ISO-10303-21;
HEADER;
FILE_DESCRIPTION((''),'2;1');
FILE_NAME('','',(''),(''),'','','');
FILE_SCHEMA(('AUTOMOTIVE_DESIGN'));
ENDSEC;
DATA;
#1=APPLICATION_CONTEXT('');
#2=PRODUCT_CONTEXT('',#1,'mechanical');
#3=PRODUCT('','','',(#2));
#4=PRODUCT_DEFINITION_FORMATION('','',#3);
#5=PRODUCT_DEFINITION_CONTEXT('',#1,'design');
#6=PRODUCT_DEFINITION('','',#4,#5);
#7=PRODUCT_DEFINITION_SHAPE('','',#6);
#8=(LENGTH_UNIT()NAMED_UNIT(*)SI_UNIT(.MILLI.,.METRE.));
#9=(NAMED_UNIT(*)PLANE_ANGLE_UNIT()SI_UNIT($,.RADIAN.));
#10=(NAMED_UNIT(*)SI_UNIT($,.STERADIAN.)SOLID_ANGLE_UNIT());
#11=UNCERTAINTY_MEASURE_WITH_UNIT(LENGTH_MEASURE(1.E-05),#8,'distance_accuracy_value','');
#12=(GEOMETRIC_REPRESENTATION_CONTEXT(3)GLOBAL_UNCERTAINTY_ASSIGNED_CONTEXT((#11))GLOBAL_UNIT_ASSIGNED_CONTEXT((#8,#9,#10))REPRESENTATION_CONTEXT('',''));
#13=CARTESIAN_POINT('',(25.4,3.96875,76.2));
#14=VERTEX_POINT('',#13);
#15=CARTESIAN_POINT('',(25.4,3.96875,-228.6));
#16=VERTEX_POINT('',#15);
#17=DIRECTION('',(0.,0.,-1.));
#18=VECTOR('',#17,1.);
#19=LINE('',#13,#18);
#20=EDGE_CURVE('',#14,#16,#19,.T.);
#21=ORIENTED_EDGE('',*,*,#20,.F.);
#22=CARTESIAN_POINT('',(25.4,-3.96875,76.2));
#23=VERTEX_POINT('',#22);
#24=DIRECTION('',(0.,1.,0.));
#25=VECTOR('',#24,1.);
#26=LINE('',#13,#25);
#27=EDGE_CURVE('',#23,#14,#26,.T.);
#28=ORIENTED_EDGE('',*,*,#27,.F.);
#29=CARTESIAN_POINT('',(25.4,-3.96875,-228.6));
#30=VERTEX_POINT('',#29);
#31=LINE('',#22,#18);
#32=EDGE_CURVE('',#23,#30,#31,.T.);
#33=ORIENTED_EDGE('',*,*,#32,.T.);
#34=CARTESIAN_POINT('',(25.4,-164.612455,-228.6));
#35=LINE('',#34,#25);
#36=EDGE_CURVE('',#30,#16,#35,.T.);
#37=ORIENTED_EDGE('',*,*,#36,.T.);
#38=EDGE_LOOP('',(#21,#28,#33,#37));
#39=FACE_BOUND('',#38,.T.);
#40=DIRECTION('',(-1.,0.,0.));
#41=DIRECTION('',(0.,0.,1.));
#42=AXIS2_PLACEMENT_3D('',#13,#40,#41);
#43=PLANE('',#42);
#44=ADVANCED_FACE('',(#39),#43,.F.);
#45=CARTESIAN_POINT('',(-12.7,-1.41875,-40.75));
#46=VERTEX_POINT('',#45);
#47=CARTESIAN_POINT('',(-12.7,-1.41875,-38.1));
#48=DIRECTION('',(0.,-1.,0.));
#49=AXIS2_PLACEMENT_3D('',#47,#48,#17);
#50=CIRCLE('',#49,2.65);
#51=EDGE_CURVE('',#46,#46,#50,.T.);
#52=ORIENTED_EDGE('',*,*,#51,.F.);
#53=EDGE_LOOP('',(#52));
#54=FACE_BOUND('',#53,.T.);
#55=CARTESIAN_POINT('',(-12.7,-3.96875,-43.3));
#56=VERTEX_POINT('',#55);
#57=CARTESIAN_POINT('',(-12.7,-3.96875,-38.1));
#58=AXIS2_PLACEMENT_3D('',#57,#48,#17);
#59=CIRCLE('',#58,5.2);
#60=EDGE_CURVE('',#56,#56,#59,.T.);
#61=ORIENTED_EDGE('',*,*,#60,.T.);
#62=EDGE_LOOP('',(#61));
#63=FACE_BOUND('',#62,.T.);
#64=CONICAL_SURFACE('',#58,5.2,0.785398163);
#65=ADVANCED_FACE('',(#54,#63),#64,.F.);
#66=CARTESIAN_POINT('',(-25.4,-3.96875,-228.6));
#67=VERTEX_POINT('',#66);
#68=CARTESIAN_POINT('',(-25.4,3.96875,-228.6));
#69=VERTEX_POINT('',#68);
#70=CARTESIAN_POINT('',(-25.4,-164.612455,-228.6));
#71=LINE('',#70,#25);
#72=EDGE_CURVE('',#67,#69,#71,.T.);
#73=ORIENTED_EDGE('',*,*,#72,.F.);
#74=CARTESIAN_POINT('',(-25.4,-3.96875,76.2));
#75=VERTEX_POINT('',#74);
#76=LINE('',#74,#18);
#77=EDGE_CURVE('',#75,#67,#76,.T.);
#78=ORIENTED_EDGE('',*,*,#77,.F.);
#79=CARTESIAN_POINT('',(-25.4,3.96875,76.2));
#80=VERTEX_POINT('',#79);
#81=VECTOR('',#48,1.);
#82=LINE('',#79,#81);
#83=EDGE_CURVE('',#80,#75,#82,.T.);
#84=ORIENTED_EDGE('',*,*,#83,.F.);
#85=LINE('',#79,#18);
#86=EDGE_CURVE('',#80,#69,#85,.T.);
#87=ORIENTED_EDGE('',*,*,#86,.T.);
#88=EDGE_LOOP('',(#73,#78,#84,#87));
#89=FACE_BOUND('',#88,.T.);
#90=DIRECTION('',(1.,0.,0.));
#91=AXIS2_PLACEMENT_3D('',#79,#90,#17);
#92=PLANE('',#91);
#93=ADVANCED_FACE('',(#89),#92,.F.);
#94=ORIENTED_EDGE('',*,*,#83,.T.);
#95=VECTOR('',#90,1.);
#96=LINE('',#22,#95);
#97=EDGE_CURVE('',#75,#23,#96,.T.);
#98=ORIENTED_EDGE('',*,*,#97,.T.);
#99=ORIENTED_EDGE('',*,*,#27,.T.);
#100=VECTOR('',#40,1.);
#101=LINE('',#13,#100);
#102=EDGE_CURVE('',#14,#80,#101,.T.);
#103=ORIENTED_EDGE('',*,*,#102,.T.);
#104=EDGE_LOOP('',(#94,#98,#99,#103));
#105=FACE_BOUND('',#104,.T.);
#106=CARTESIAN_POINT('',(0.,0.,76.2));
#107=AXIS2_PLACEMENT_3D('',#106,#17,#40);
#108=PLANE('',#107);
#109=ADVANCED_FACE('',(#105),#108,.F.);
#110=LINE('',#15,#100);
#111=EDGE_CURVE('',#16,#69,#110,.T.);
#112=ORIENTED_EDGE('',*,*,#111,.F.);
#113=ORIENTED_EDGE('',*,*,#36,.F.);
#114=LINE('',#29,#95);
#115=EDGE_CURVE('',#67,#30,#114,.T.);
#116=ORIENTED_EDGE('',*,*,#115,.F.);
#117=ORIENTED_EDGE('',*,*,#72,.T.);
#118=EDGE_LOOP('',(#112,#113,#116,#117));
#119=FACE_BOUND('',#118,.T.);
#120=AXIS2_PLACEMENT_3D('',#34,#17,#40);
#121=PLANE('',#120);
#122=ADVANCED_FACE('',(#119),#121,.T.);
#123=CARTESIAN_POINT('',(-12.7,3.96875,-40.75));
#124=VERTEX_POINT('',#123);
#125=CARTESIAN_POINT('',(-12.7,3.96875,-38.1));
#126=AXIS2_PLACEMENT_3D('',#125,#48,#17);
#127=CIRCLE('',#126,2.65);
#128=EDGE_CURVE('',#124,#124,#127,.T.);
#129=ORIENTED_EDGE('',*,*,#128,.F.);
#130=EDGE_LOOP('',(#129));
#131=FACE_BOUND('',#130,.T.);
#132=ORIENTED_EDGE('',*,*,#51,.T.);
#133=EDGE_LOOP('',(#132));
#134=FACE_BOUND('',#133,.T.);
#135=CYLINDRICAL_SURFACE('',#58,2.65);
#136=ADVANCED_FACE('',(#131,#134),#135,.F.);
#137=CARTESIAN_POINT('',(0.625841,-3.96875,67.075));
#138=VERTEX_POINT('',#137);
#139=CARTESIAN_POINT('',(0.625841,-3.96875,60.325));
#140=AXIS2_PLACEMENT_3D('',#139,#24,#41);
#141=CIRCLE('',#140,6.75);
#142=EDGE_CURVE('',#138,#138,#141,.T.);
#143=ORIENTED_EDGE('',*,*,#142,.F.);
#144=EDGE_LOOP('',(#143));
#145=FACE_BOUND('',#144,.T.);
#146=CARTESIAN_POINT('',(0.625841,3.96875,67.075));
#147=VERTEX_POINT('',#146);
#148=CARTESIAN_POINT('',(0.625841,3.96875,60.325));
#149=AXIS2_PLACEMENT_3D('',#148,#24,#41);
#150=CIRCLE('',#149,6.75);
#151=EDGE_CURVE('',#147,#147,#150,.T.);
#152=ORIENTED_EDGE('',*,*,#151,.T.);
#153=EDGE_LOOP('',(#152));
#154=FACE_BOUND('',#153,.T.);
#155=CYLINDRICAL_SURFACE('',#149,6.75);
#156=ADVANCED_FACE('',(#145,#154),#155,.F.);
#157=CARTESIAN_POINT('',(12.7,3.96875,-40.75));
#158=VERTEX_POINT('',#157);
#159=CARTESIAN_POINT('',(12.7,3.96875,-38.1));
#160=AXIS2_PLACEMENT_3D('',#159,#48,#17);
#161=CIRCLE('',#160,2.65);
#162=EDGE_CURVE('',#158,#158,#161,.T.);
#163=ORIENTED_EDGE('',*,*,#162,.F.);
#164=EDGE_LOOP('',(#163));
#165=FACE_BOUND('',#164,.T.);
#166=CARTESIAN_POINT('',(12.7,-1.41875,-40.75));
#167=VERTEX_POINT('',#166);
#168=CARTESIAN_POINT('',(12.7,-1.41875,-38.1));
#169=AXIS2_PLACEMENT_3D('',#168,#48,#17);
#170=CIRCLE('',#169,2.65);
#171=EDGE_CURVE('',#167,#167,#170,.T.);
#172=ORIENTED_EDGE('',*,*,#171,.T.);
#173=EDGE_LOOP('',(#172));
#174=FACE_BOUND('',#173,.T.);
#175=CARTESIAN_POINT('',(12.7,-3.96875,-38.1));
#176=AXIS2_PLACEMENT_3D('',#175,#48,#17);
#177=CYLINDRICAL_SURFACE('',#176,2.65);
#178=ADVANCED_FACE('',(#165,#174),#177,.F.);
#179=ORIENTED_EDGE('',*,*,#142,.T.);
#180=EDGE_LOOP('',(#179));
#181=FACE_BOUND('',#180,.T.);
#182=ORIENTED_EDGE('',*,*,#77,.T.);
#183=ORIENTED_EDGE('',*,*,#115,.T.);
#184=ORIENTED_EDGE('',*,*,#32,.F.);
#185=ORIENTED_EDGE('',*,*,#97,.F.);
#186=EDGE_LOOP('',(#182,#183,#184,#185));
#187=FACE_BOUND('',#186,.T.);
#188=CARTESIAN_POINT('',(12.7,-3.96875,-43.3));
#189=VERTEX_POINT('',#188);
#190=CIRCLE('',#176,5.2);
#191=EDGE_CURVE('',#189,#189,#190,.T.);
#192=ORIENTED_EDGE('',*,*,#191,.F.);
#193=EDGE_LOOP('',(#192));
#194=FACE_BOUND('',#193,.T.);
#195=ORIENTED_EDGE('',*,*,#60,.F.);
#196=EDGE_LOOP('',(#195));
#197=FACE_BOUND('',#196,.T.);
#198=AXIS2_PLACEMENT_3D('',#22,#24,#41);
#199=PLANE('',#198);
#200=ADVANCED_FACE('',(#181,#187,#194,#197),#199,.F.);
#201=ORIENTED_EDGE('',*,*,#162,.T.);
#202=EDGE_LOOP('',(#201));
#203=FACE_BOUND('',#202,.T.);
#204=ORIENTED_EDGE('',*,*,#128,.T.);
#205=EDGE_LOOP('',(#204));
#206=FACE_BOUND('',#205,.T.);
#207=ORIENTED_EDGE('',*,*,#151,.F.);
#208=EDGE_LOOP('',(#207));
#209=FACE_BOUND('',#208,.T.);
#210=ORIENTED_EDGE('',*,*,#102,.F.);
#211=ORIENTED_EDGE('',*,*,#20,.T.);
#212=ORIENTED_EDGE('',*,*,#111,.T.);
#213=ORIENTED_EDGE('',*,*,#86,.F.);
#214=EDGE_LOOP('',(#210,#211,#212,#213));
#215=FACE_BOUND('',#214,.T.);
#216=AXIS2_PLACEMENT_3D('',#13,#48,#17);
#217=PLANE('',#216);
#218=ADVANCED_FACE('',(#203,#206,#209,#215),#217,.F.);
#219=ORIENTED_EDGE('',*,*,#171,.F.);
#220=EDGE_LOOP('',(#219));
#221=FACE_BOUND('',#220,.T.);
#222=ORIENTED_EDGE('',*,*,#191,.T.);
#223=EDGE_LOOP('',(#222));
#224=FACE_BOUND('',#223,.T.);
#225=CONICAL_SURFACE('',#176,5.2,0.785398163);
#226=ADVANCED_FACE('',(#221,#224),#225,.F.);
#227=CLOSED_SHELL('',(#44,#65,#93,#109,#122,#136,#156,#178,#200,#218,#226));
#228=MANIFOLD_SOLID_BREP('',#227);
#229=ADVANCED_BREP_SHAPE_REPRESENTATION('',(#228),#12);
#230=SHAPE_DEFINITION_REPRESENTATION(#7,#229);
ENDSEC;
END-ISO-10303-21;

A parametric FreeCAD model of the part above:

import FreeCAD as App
import Part
import Sketcher

V = App.Vector
Q = App.Units.Quantity


def add_polygon(sketch, points):
    """Adds a closed chain of lines whose ends are joined by coincident constraints."""
    first, n = sketch.GeometryCount, len(points)
    for a, b in zip(points, points[1:] + points[:1]):
        sketch.addGeometry(Part.LineSegment(App.Vector(*a, 0), App.Vector(*b, 0)), False)
    for i in range(n):
        sketch.addConstraint(Sketcher.Constraint("Coincident", first + i, 2, first + (i + 1) % n, 1))

doc = App.newDocument("Part")
params = doc.addObject("Spreadsheet::Sheet", "Params")
for row, (alias, value) in enumerate([
    ("sketch1_width", "2 in"),
    ("sketch1_height", "0.3125 in"),
    ("pad1_length", "3 in"),
    ("pad1_length2", "3 in"),
    ("hole_diameter", "13.5 mm"),
    ("hole2_diameter", "5.3 mm"),
    ("hole2_csink_diameter", "10.4 mm"),
    ("sketch4_width", "2 in"),
    ("sketch4_height", "6 in"),
    ("pad2_length", "0.3125 in"),
], start=1):
    params.set(f"A{row}", alias)
    params.set(f"B{row}", "=" + value)
    params.setAlias(f"B{row}", alias)

body = doc.addObject("PartDesign::Body", "Body")

# Sketch on XY plane
sketch1 = body.newObject("Sketcher::SketchObject", "Sketch")
sketch1.AttachmentSupport = (doc.getObject("XY_Plane"), [""])
sketch1.MapMode = "FlatFace"
add_polygon(sketch1, [(-25, 4), (-25, -4), (25, -4), (25, 4)])  # lines 0-3
sketch1.addConstraint([
    Sketcher.Constraint("Vertical", 0),
    Sketcher.Constraint("Horizontal", 1),
    Sketcher.Constraint("Vertical", 2),
    Sketcher.Constraint("Horizontal", 3),
    Sketcher.Constraint("Symmetric", 0, 2, 2, 2, -1, 1),
    Sketcher.Constraint("DistanceX", 1, 1, 1, 2, Q("2 in")),
    Sketcher.Constraint("DistanceY", 0, 2, 0, 1, Q("0.3125 in")),
])
sketch1.setExpression("Constraints[9]", "Params.sketch1_width")
sketch1.setExpression("Constraints[10]", "Params.sketch1_height")
pad1 = body.newObject("PartDesign::Pad", "Pad")
pad1.Profile = sketch1
pad1.Type = "TwoLengths"
pad1.setExpression("Length", "Params.pad1_length")
pad1.setExpression("Length2", "Params.pad1_length2")

# Sketch on XZ plane
sketch2 = body.newObject("Sketcher::SketchObject", "Sketch001")
sketch2.AttachmentSupport = (doc.getObject("XZ_Plane"), [""])
sketch2.MapMode = "FlatFace"
sketch2.AttachmentOffset = App.Placement(V(0, 0, -0.15625 * 25.4), App.Rotation())
sketch2.addGeometry(Part.Circle(V(1, 60, 0), V(0, 0, 1), 7), False)
sketch2.addConstraint([
    Sketcher.Constraint("Diameter", 0, Q("13.5 mm")),
    Sketcher.Constraint("DistanceY", -1, 1, 0, 3, Q("2.375 in")),
    Sketcher.Constraint("DistanceX", -1, 1, 0, 3, Q("0.625841 mm")),
])
doc.recompute()
hole = body.newObject("PartDesign::Hole", "Hole")
hole.Profile = sketch2
hole.ThreadType = "None"
hole.setExpression("Diameter", "Params.hole_diameter")
hole.DepthType = "ThroughAll"
hole.Reversed = True

# Sketch on XZ plane
sketch3 = body.newObject("Sketcher::SketchObject", "Sketch002")
sketch3.AttachmentSupport = (doc.getObject("XZ_Plane"), [""])
sketch3.MapMode = "FlatFace"
sketch3.AttachmentOffset = App.Placement(V(0, 0, 0.15625 * 25.4), App.Rotation())
sketch3.addGeometry([
    Part.Circle(V(12.7, -38.1, 0), V(0, 0, 1), 2.6),
    Part.Circle(V(-12.7, -38.1, 0), V(0, 0, 1), 2.6),
], False)
sketch3.addConstraint([
    Sketcher.Constraint("Equal", 0, 1),
    Sketcher.Constraint("Symmetric", 0, 3, 1, 3, -2),
    Sketcher.Constraint("DistanceX", 1, 3, 0, 3, Q("1 in")),
    Sketcher.Constraint("DistanceY", 0, 3, -1, 1, Q("1.5 in")),
    Sketcher.Constraint("Diameter", 0, Q("5.3 mm")),
])
doc.recompute()
hole2 = body.newObject("PartDesign::Hole", "Hole001")
hole2.Profile = sketch3
hole2.ThreadType = "None"
hole2.setExpression("Diameter", "Params.hole2_diameter")
hole2.DepthType = "ThroughAll"
hole2.HoleCutType = "Countersink"
hole2.setExpression("HoleCutDiameter", "Params.hole2_csink_diameter")
hole2.HoleCutCountersinkAngle = 90

# Sketch on XZ plane
sketch4 = body.newObject("Sketcher::SketchObject", "Sketch003")
sketch4.AttachmentSupport = (doc.getObject("XZ_Plane"), [""])
sketch4.MapMode = "FlatFace"
sketch4.AttachmentOffset = App.Placement(V(0, 0, -0.15625 * 25.4), App.Rotation())
add_polygon(sketch4, [(-25, -229), (-25, -76), (25, -76), (25, -229)])  # lines 0-3
sketch4.addConstraint([
    Sketcher.Constraint("Vertical", 0),
    Sketcher.Constraint("Horizontal", 1),
    Sketcher.Constraint("Vertical", 2),
    Sketcher.Constraint("Horizontal", 3),
    Sketcher.Constraint("DistanceX", 1, 1, 1, 2, Q("2 in")),
    Sketcher.Constraint("DistanceY", 0, 1, 0, 2, Q("6 in")),
    Sketcher.Constraint("DistanceX", 0, 2, -1, 1, Q("1 in")),
    Sketcher.Constraint("DistanceY", 0, 2, -1, 1, Q("3 in")),
])
sketch4.setExpression("Constraints[8]", "Params.sketch4_width")
sketch4.setExpression("Constraints[9]", "Params.sketch4_height")
pad2 = body.newObject("PartDesign::Pad", "Pad001")
pad2.Profile = sketch4
pad2.setExpression("Length", "Params.pad2_length")

doc.recompute()
